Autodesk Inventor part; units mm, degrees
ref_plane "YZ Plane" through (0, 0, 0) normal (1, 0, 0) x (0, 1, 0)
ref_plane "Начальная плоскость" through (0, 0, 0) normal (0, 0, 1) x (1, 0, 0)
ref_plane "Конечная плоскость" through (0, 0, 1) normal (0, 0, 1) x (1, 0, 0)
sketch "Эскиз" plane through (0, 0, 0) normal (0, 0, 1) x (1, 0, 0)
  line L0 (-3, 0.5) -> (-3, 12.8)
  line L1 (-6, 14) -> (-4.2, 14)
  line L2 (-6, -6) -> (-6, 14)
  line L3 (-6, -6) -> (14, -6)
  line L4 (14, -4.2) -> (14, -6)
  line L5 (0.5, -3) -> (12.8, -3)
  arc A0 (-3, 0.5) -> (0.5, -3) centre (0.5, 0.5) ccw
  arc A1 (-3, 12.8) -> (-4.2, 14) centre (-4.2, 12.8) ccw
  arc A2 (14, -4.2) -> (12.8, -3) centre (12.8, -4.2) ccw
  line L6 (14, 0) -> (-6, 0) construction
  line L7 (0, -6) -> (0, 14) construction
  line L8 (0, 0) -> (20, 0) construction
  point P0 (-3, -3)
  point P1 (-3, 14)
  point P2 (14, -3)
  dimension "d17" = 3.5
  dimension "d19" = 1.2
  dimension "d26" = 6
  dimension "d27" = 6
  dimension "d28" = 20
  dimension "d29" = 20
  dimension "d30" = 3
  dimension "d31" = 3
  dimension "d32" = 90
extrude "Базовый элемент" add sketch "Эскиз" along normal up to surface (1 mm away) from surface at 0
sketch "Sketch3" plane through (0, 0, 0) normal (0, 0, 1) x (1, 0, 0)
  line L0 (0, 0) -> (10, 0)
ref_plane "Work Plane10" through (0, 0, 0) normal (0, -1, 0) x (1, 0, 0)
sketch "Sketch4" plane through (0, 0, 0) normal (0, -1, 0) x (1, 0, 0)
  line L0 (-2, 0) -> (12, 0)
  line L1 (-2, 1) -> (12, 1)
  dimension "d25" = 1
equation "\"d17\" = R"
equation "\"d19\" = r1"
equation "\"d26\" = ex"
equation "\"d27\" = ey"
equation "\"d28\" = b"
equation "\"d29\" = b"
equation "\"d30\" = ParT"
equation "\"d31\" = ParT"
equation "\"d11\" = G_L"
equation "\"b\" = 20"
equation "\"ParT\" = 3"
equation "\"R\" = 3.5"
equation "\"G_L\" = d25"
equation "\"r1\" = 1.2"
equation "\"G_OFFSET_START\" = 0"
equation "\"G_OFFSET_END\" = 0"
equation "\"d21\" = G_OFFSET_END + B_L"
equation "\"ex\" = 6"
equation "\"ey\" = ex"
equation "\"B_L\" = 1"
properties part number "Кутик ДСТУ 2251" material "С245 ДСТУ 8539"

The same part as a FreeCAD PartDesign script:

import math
import FreeCAD as App
import Part
import Sketcher
from FreeCAD import Vector
Q = App.Units.Quantity

doc = App.newDocument("Part")
body = doc.addObject("PartDesign::Body", "Body")

# Sketch on XY plane
sketch1 = doc.addObject("Sketcher::SketchObject", "Sketch")
body.addObject(sketch1)
sketch1.AttachmentSupport = (doc.XY_Plane, [""])
sketch1.MapMode = "FlatFace"
sketch1.addGeometry([
    Part.ArcOfCircle(Part.Circle(Vector(0.5, 0.5, 0), Vector(0, 0, 1), 3.5), math.radians(180), math.radians(270)),  # 0
    Part.LineSegment(Vector(-3, 0.5, 0), Vector(-3, 12.8, 0)),  # 1
    Part.ArcOfCircle(Part.Circle(Vector(-4.2, 12.8, 0), Vector(0, 0, 1), 1.2), math.radians(0), math.radians(90)),  # 2
    Part.LineSegment(Vector(-4.2, 14, 0), Vector(-6, 14, 0)),  # 3
    Part.LineSegment(Vector(-6, 14, 0), Vector(-6, -6, 0)),  # 4
    Part.LineSegment(Vector(-6, -6, 0), Vector(14, -6, 0)),  # 5
    Part.LineSegment(Vector(14, -6, 0), Vector(14, -4.2, 0)),  # 6
    Part.ArcOfCircle(Part.Circle(Vector(12.8, -4.2, 0), Vector(0, 0, 1), 1.2), math.radians(0), math.radians(90)),  # 7
    Part.LineSegment(Vector(12.8, -3, 0), Vector(0.5, -3, 0)),  # 8
], False)
sketch1.addConstraint([
    Sketcher.Constraint("Tangent", 0, 1, 1, 1),
    Sketcher.Constraint("Tangent", 1, 2, 2, 1),
    Sketcher.Constraint("Tangent", 2, 2, 3, 1),
    Sketcher.Constraint("Coincident", 3, 2, 4, 1),
    Sketcher.Constraint("Coincident", 4, 2, 5, 1),
    Sketcher.Constraint("Coincident", 5, 2, 6, 1),
    Sketcher.Constraint("Tangent", 6, 2, 7, 1),
    Sketcher.Constraint("Tangent", 7, 2, 8, 1),
    Sketcher.Constraint("Tangent", 8, 2, 0, 2),
    Sketcher.Constraint("Vertical", 1),
    Sketcher.Constraint("Horizontal", 3),
    Sketcher.Constraint("Vertical", 4),
    Sketcher.Constraint("Horizontal", 5),
    Sketcher.Constraint("Vertical", 6),
    Sketcher.Constraint("Horizontal", 8),
    Sketcher.Constraint("Equal", 2, 7),
    Sketcher.Constraint("Equal", 8, 1),
    Sketcher.Constraint("Equal", 5, 4),
    Sketcher.Constraint("Radius", 0, Q("3.5 mm")),
    Sketcher.Constraint("Radius", 2, Q("1.2 mm")),
    Sketcher.Constraint("DistanceX", 5, 1, 5, 2, Q("20 mm")),
    Sketcher.Constraint("DistanceX", 0, 1, -1, 1, Q("3 mm")),
    Sketcher.Constraint("DistanceX", 3, 2, -1, 1, Q("6 mm")),
    Sketcher.Constraint("DistanceY", 4, 2, -1, 1, Q("6 mm")),
])
pad1 = doc.addObject("PartDesign::Pad", "Pad")
body.addObject(pad1)
pad1.Profile = sketch1
pad1.Length = 1

doc.recompute()
